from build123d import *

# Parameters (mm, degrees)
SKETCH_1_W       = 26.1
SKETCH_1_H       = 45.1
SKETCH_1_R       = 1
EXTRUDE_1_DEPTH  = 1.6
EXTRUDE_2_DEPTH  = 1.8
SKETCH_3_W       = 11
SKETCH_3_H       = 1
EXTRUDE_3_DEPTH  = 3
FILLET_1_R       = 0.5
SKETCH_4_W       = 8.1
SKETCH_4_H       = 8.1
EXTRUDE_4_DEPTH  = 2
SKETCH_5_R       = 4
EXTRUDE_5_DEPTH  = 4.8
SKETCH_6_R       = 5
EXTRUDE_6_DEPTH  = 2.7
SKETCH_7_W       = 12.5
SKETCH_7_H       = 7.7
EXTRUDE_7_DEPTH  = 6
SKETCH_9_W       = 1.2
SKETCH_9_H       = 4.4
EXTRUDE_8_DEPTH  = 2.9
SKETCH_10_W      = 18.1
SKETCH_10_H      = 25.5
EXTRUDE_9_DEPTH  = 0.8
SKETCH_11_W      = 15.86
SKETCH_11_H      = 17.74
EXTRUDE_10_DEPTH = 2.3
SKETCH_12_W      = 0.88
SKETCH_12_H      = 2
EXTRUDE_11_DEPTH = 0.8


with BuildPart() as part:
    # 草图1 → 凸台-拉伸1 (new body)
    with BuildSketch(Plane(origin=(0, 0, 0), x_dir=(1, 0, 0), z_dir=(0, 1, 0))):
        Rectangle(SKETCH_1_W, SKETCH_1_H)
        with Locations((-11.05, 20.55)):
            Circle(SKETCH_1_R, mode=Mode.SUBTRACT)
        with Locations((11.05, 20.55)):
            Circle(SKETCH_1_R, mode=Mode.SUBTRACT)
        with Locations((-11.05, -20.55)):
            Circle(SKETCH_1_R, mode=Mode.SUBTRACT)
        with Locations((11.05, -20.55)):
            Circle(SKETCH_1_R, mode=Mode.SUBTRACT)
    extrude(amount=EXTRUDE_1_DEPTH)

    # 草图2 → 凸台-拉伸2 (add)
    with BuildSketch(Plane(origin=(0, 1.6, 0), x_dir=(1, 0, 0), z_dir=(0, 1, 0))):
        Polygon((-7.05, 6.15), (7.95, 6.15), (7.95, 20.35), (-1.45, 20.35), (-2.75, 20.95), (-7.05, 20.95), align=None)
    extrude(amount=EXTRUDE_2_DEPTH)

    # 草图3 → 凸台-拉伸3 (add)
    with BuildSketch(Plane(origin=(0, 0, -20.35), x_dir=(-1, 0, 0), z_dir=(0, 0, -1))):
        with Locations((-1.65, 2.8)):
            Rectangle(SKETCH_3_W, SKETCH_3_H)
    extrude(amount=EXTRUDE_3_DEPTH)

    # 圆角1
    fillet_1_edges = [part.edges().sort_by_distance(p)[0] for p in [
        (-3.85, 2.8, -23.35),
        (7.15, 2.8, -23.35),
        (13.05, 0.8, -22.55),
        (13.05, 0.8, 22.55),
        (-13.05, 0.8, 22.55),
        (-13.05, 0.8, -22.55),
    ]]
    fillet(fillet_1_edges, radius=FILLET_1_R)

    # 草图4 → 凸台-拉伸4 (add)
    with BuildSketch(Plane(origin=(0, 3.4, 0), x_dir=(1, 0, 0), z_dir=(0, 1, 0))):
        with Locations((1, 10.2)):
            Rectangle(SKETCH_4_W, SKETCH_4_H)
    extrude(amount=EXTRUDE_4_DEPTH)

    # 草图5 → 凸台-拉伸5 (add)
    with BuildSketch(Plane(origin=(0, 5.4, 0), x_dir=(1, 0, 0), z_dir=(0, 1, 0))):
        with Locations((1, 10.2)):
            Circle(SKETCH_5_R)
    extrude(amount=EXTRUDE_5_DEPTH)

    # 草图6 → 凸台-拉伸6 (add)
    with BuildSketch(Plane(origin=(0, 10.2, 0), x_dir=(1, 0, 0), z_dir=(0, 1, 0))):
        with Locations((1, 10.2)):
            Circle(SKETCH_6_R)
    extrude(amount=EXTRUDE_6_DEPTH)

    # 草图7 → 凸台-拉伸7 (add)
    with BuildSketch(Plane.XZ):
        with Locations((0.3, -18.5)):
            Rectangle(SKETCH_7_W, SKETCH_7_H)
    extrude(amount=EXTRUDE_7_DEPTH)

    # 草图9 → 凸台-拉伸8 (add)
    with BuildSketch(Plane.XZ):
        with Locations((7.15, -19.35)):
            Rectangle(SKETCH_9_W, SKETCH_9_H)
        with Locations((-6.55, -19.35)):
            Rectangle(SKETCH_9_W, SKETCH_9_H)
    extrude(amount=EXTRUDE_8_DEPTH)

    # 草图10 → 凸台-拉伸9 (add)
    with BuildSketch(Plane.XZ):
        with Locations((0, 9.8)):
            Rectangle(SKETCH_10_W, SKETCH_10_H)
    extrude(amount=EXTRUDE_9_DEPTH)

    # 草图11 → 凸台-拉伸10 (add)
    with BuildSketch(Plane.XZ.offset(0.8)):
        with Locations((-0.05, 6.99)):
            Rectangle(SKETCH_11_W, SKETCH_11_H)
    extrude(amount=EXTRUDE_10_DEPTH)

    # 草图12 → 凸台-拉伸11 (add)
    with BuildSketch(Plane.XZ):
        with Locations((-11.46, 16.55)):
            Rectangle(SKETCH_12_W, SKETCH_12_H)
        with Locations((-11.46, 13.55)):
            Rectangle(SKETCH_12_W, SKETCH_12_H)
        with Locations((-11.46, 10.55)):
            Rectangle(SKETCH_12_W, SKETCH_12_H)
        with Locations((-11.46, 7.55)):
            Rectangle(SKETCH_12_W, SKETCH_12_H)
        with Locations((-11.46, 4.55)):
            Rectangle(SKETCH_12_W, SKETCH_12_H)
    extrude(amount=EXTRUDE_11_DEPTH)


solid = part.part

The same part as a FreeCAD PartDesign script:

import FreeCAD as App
import Part
import Sketcher
from FreeCAD import Vector
Q = App.Units.Quantity


def edges_at(feature, points):
    """Names of the edges that pass closest to the given points."""
    edges = feature.Shape.Edges
    near = lambda p: min(range(len(edges)), key=lambda i: edges[i].distToShape(Part.Vertex(*p))[0])
    return sorted({f"Edge{near(p) + 1}" for p in points})

doc = App.newDocument("Part")
body = doc.addObject("PartDesign::Body", "Body")

# Sketch on XZ plane
sketch1 = body.newObject("Sketcher::SketchObject", "Sketch")
sketch1.AttachmentSupport = (doc.getObject("XZ_Plane"), [""])
sketch1.MapMode = "FlatFace"
sketch1.addGeometry([
    Part.LineSegment(Vector(-13.1, -22.6, 0), Vector(-13.1, 22.6, 0)),  # 0
    Part.LineSegment(Vector(-13.1, 22.6, 0), Vector(13.1, 22.6, 0)),  # 1
    Part.LineSegment(Vector(13.1, 22.6, 0), Vector(13.1, -22.6, 0)),  # 2
    Part.LineSegment(Vector(13.1, -22.6, 0), Vector(-13.1, -22.6, 0)),  # 3
    Part.Circle(Vector(-11.1, 20.6, 0), Vector(0, 0, 1), 1),  # 4
    Part.Circle(Vector(11.1, 20.6, 0), Vector(0, 0, 1), 1),  # 5
    Part.Circle(Vector(-11.1, -20.6, 0), Vector(0, 0, 1), 1),  # 6
    Part.Circle(Vector(11.1, -20.6, 0), Vector(0, 0, 1), 1),  # 7
], False)
sketch1.addConstraint([
    Sketcher.Constraint("Coincident", 0, 2, 1, 1),
    Sketcher.Constraint("Coincident", 1, 2, 2, 1),
    Sketcher.Constraint("Coincident", 2, 2, 3, 1),
    Sketcher.Constraint("Coincident", 3, 2, 0, 1),
    Sketcher.Constraint("Vertical", 0),
    Sketcher.Constraint("Horizontal", 1),
    Sketcher.Constraint("Vertical", 2),
    Sketcher.Constraint("Horizontal", 3),
    Sketcher.Constraint("Equal", 4, 5),
    Sketcher.Constraint("Equal", 5, 6),
    Sketcher.Constraint("Equal", 6, 7),
    Sketcher.Constraint("Symmetric", 5, 3, 6, 3, -1, 1),
    Sketcher.Constraint("Symmetric", 4, 3, 7, 3, -1, 1),
    Sketcher.Constraint("Symmetric", 0, 2, 2, 2, -1, 1),
    Sketcher.Constraint("Symmetric", 4, 3, 5, 3, -2),
    Sketcher.Constraint("Diameter", 4, Q("2 mm")),
    Sketcher.Constraint("DistanceX", 1, 1, 1, 2, Q("26.1 mm")),
    Sketcher.Constraint("DistanceY", 0, 1, 0, 2, Q("45.1 mm")),
    Sketcher.Constraint("DistanceX", 0, 2, 4, 3, Q("2 mm")),
    Sketcher.Constraint("DistanceY", 4, 3, 0, 2, Q("2 mm")),
])
pad1 = body.newObject("PartDesign::Pad", "Pad")
pad1.Profile = sketch1
pad1.Length = 1.6
pad1.Reversed = True

# Sketch on XZ plane
sketch2 = body.newObject("Sketcher::SketchObject", "Sketch001")
sketch2.AttachmentSupport = (doc.getObject("XZ_Plane"), [""])
sketch2.MapMode = "FlatFace"
sketch2.AttachmentOffset = App.Placement(Vector(0, 0, -1.6), App.Rotation())
sketch2.addGeometry([
    Part.LineSegment(Vector(-7, -6.2, 0), Vector(8, -6.2, 0)),  # 0
    Part.LineSegment(Vector(8, -6.2, 0), Vector(8, -20.4, 0)),  # 1
    Part.LineSegment(Vector(8, -20.4, 0), Vector(-1.4, -20.4, 0)),  # 2
    Part.LineSegment(Vector(-1.4, -20.4, 0), Vector(-2.8, -20.9, 0)),  # 3
    Part.LineSegment(Vector(-2.8, -20.9, 0), Vector(-7, -20.9, 0)),  # 4
    Part.LineSegment(Vector(-7, -20.9, 0), Vector(-7, -6.2, 0)),  # 5
], False)
sketch2.addConstraint([
    Sketcher.Constraint("Coincident", 0, 2, 1, 1),
    Sketcher.Constraint("Coincident", 1, 2, 2, 1),
    Sketcher.Constraint("Coincident", 2, 2, 3, 1),
    Sketcher.Constraint("Coincident", 3, 2, 4, 1),
    Sketcher.Constraint("Coincident", 4, 2, 5, 1),
    Sketcher.Constraint("Coincident", 5, 2, 0, 1),
    Sketcher.Constraint("Horizontal", 0),
    Sketcher.Constraint("Vertical", 1),
    Sketcher.Constraint("Horizontal", 2),
    Sketcher.Constraint("Horizontal", 4),
    Sketcher.Constraint("Vertical", 5),
    Sketcher.Constraint("DistanceX", 0, 1, 0, 2, Q("15 mm")),
    Sketcher.Constraint("DistanceX", 2, 2, 2, 1, Q("9.4 mm")),
    Sketcher.Constraint("DistanceX", 4, 2, 4, 1, Q("4.3 mm")),
    Sketcher.Constraint("DistanceY", 1, 2, 1, 1, Q("14.2 mm")),
    Sketcher.Constraint("DistanceY", 5, 1, 5, 2, Q("14.8 mm")),
    Sketcher.Constraint("DistanceX", -1, 1, 0, 2, Q("7.95 mm")),
    Sketcher.Constraint("DistanceY", 0, 2, -1, 1, Q("6.15 mm")),
])
pad2 = body.newObject("PartDesign::Pad", "Pad001")
pad2.Profile = sketch2
pad2.Length = 1.8
pad2.Reversed = True

# Sketch on XY plane
sketch3 = body.newObject("Sketcher::SketchObject", "Sketch002")
sketch3.AttachmentSupport = (doc.getObject("XY_Plane"), [""])
sketch3.MapMode = "FlatFace"
sketch3.AttachmentOffset = App.Placement(Vector(0, 0, -20.35), App.Rotation())
sketch3.addGeometry([
    Part.LineSegment(Vector(7.2, 3.3, 0), Vector(7.2, 2.3, 0)),
    Part.LineSegment(Vector(7.2, 2.3, 0), Vector(-3.9, 2.3, 0)),
    Part.LineSegment(Vector(-3.9, 2.3, 0), Vector(-3.9, 3.3, 0)),
    Part.LineSegment(Vector(-3.9, 3.3, 0), Vector(7.2, 3.3, 0)),
], False)
sketch3.addConstraint([
    Sketcher.Constraint("Coincident", 0, 2, 1, 1),
    Sketcher.Constraint("Coincident", 1, 2, 2, 1),
    Sketcher.Constraint("Coincident", 2, 2, 3, 1),
    Sketcher.Constraint("Coincident", 3, 2, 0, 1),
    Sketcher.Constraint("Vertical", 0),
    Sketcher.Constraint("Horizontal", 1),
    Sketcher.Constraint("Vertical", 2),
    Sketcher.Constraint("Horizontal", 3),
    Sketcher.Constraint("DistanceX", 1, 2, 1, 1, Q("11 mm")),
    Sketcher.Constraint("DistanceY", 0, 2, 0, 1, Q("1 mm")),
    Sketcher.Constraint("DistanceY", -1, 1, 0, 2, Q("2.3 mm")),
    Sketcher.Constraint("DistanceX", -1, 1, 0, 2, Q("7.15 mm")),
])
pad3 = body.newObject("PartDesign::Pad", "Pad002")
pad3.Profile = sketch3
pad3.Length = 3
pad3.Reversed = True
doc.recompute()

fillet = body.newObject("PartDesign::Fillet", "Fillet")
fillet.Base = (pad3, edges_at(pad3, [
    (-3.85, 2.8, -23.35),
    (7.15, 2.8, -23.35),
    (13.05, 0.8, -22.55),
    (13.05, 0.8, 22.55),
    (-13.05, 0.8, 22.55),
    (-13.05, 0.8, -22.55),
]))
fillet.Radius = 0.5

# Sketch on XZ plane
sketch4 = body.newObject("Sketcher::SketchObject", "Sketch003")
sketch4.AttachmentSupport = (doc.getObject("XZ_Plane"), [""])
sketch4.MapMode = "FlatFace"
sketch4.AttachmentOffset = App.Placement(Vector(0, 0, -3.4), App.Rotation())
sketch4.addGeometry([
    Part.LineSegment(Vector(-3, -14, 0), Vector(-3, -6, 0)),
    Part.LineSegment(Vector(-3, -6, 0), Vector(5, -6, 0)),
    Part.LineSegment(Vector(5, -6, 0), Vector(5, -14, 0)),
    Part.LineSegment(Vector(5, -14, 0), Vector(-3, -14, 0)),
], False)
sketch4.addConstraint([
    Sketcher.Constraint("Coincident", 0, 2, 1, 1),
    Sketcher.Constraint("Coincident", 1, 2, 2, 1),
    Sketcher.Constraint("Coincident", 2, 2, 3, 1),
    Sketcher.Constraint("Coincident", 3, 2, 0, 1),
    Sketcher.Constraint("Vertical", 0),
    Sketcher.Constraint("Horizontal", 1),
    Sketcher.Constraint("Vertical", 2),
    Sketcher.Constraint("Horizontal", 3),
    Sketcher.Constraint("Equal", 3, 0),
    Sketcher.Constraint("DistanceX", 1, 1, 1, 2, Q("8.1 mm")),
    Sketcher.Constraint("DistanceX", 0, 2, -1, 1, Q("3.05 mm")),
    Sketcher.Constraint("DistanceY", 0, 2, -1, 1, Q("6.15 mm")),
])
pad4 = body.newObject("PartDesign::Pad", "Pad003")
pad4.Profile = sketch4
pad4.Length = 2
pad4.Reversed = True

# Sketch on XZ plane
sketch5 = body.newObject("Sketcher::SketchObject", "Sketch004")
sketch5.AttachmentSupport = (doc.getObject("XZ_Plane"), [""])
sketch5.MapMode = "FlatFace"
sketch5.AttachmentOffset = App.Placement(Vector(0, 0, -5.4), App.Rotation())
sketch5.addGeometry(Part.Circle(Vector(1, -10.2, 0), Vector(0, 0, 1), 4), False)
sketch5.addConstraint([
    Sketcher.Constraint("Diameter", 0, Q("8 mm")),
    Sketcher.Constraint("DistanceX", -1, 1, 0, 3, Q("1 mm")),
    Sketcher.Constraint("DistanceY", 0, 3, -1, 1, Q("10.2 mm")),
])
pad5 = body.newObject("PartDesign::Pad", "Pad004")
pad5.Profile = sketch5
pad5.Length = 4.8
pad5.Reversed = True

# Sketch on XZ plane
sketch6 = body.newObject("Sketcher::SketchObject", "Sketch005")
sketch6.AttachmentSupport = (doc.getObject("XZ_Plane"), [""])
sketch6.MapMode = "FlatFace"
sketch6.AttachmentOffset = App.Placement(Vector(0, 0, -10.2), App.Rotation())
sketch6.addGeometry(Part.Circle(Vector(1, -10, 0), Vector(0, 0, 1), 5), False)
sketch6.addConstraint([
    Sketcher.Constraint("Diameter", 0, Q("10 mm")),
    Sketcher.Constraint("DistanceX", -1, 1, 0, 3, Q("1 mm")),
    Sketcher.Constraint("DistanceY", 0, 3, -1, 1, Q("10.2 mm")),
])
pad6 = body.newObject("PartDesign::Pad", "Pad005")
pad6.Profile = sketch6
pad6.Length = 2.7
pad6.Reversed = True

# Sketch on XZ plane
sketch7 = body.newObject("Sketcher::SketchObject", "Sketch006")
sketch7.AttachmentSupport = (doc.getObject("XZ_Plane"), [""])
sketch7.MapMode = "FlatFace"
sketch7.addGeometry([
    Part.LineSegment(Vector(-6, -15, 0), Vector(-6, -22, 0)),
    Part.LineSegment(Vector(-6, -22, 0), Vector(7, -22, 0)),
    Part.LineSegment(Vector(7, -22, 0), Vector(7, -15, 0)),
    Part.LineSegment(Vector(7, -15, 0), Vector(-6, -15, 0)),
], False)
sketch7.addConstraint([
    Sketcher.Constraint("Coincident", 0, 2, 1, 1),
    Sketcher.Constraint("Coincident", 1, 2, 2, 1),
    Sketcher.Constraint("Coincident", 2, 2, 3, 1),
    Sketcher.Constraint("Coincident", 3, 2, 0, 1),
    Sketcher.Constraint("Vertical", 0),
    Sketcher.Constraint("Horizontal", 1),
    Sketcher.Constraint("Vertical", 2),
    Sketcher.Constraint("Horizontal", 3),
    Sketcher.Constraint("DistanceX", 1, 1, 1, 2, Q("12.5 mm")),
    Sketcher.Constraint("DistanceY", 0, 2, 0, 1, Q("7.7 mm")),
    Sketcher.Constraint("DistanceX", 0, 2, -1, 1, Q("5.95 mm")),
    Sketcher.Constraint("DistanceY", 0, 2, -1, 1, Q("22.35 mm")),
])
pad7 = body.newObject("PartDesign::Pad", "Pad006")
pad7.Profile = sketch7
pad7.Length = 6

# Sketch on XZ plane
sketch8 = body.newObject("Sketcher::SketchObject", "Sketch007")
sketch8.AttachmentSupport = (doc.getObject("XZ_Plane"), [""])
sketch8.MapMode = "FlatFace"
sketch8.addGeometry([
    Part.LineSegment(Vector(6.5, -17.1, 0), Vector(6.5, -21.6, 0)),  # 0
    Part.LineSegment(Vector(6.5, -21.6, 0), Vector(7.8, -21.6, 0)),  # 1
    Part.LineSegment(Vector(7.8, -21.6, 0), Vector(7.8, -17.1, 0)),  # 2
    Part.LineSegment(Vector(7.8, -17.1, 0), Vector(6.5, -17.1, 0)),  # 3
    Part.LineSegment(Vector(-7.2, -17.1, 0), Vector(-7.2, -21.6, 0)),  # 4
    Part.LineSegment(Vector(-7.2, -21.6, 0), Vector(-6, -21.6, 0)),  # 5
    Part.LineSegment(Vector(-6, -21.6, 0), Vector(-6, -17.1, 0)),  # 6
    Part.LineSegment(Vector(-6, -17.1, 0), Vector(-7.2, -17.1, 0)),  # 7
], False)
sketch8.addConstraint([
    Sketcher.Constraint("Coincident", 0, 2, 1, 1),
    Sketcher.Constraint("Coincident", 1, 2, 2, 1),
    Sketcher.Constraint("Coincident", 2, 2, 3, 1),
    Sketcher.Constraint("Coincident", 3, 2, 0, 1),
    Sketcher.Constraint("Coincident", 4, 2, 5, 1),
    Sketcher.Constraint("Coincident", 5, 2, 6, 1),
    Sketcher.Constraint("Coincident", 6, 2, 7, 1),
    Sketcher.Constraint("Coincident", 7, 2, 4, 1),
    Sketcher.Constraint("Vertical", 0),
    Sketcher.Constraint("Horizontal", 1),
    Sketcher.Constraint("Vertical", 2),
    Sketcher.Constraint("Horizontal", 3),
    Sketcher.Constraint("Vertical", 4),
    Sketcher.Constraint("Horizontal", 5),
    Sketcher.Constraint("Vertical", 6),
    Sketcher.Constraint("Horizontal", 7),
    Sketcher.Constraint("Horizontal", 1, 2, 4, 2),
    Sketcher.Constraint("Horizontal", 3, 2, 6, 2),
    Sketcher.Constraint("Equal", 3, 5),
    Sketcher.Constraint("DistanceX", 1, 1, 1, 2, Q("1.2 mm")),
    Sketcher.Constraint("DistanceY", 0, 2, 0, 1, Q("4.4 mm")),
    Sketcher.Constraint("DistanceX", 4, 2, 0, 2, Q("13.7 mm")),
    Sketcher.Constraint("DistanceX", -1, 1, 0, 2, Q("6.55 mm")),
    Sketcher.Constraint("DistanceY", 0, 2, -1, 1, Q("21.55 mm")),
])
pad8 = body.newObject("PartDesign::Pad", "Pad007")
pad8.Profile = sketch8
pad8.Length = 2.9

# Sketch on XZ plane
sketch9 = body.newObject("Sketcher::SketchObject", "Sketch008")
sketch9.AttachmentSupport = (doc.getObject("XZ_Plane"), [""])
sketch9.MapMode = "FlatFace"
sketch9.addGeometry([
    Part.LineSegment(Vector(-9, 23, 0), Vector(-9, -3, 0)),
    Part.LineSegment(Vector(-9, -3, 0), Vector(9, -3, 0)),
    Part.LineSegment(Vector(9, -3, 0), Vector(9, 23, 0)),
    Part.LineSegment(Vector(9, 23, 0), Vector(-9, 23, 0)),
], False)
sketch9.addConstraint([
    Sketcher.Constraint("Coincident", 0, 2, 1, 1),
    Sketcher.Constraint("Coincident", 1, 2, 2, 1),
    Sketcher.Constraint("Coincident", 2, 2, 3, 1),
    Sketcher.Constraint("Coincident", 3, 2, 0, 1),
    Sketcher.Constraint("Vertical", 0),
    Sketcher.Constraint("Horizontal", 1),
    Sketcher.Constraint("Vertical", 2),
    Sketcher.Constraint("Horizontal", 3),
    Sketcher.Constraint("DistanceX", 1, 1, 1, 2, Q("18.1 mm")),
    Sketcher.Constraint("DistanceY", 0, 2, 0, 1, Q("25.5 mm")),
    Sketcher.Constraint("DistanceX", 0, 2, -1, 1, Q("9.05 mm")),
    Sketcher.Constraint("DistanceY", 0, 2, -1, 1, Q("2.95 mm")),
])
pad9 = body.newObject("PartDesign::Pad", "Pad008")
pad9.Profile = sketch9
pad9.Length = 0.8

# Sketch on XZ plane
sketch10 = body.newObject("Sketcher::SketchObject", "Sketch009")
sketch10.AttachmentSupport = (doc.getObject("XZ_Plane"), [""])
sketch10.MapMode = "FlatFace"
sketch10.AttachmentOffset = App.Placement(Vector(0, 0, 0.8), App.Rotation())
sketch10.addGeometry([
    Part.LineSegment(Vector(-8, 16, 0), Vector(-8, -2, 0)),
    Part.LineSegment(Vector(-8, -2, 0), Vector(8, -2, 0)),
    Part.LineSegment(Vector(8, -2, 0), Vector(8, 16, 0)),
    Part.LineSegment(Vector(8, 16, 0), Vector(-8, 16, 0)),
], False)
sketch10.addConstraint([
    Sketcher.Constraint("Coincident", 0, 2, 1, 1),
    Sketcher.Constraint("Coincident", 1, 2, 2, 1),
    Sketcher.Constraint("Coincident", 2, 2, 3, 1),
    Sketcher.Constraint("Coincident", 3, 2, 0, 1),
    Sketcher.Constraint("Vertical", 0),
    Sketcher.Constraint("Horizontal", 1),
    Sketcher.Constraint("Vertical", 2),
    Sketcher.Constraint("Horizontal", 3),
    Sketcher.Constraint("DistanceX", 1, 1, 1, 2, Q("15.86 mm")),
    Sketcher.Constraint("DistanceY", 0, 2, 0, 1, Q("17.74 mm")),
    Sketcher.Constraint("DistanceX", 0, 2, -1, 1, Q("7.98 mm")),
    Sketcher.Constraint("DistanceY", 0, 2, -1, 1, Q("1.88 mm")),
])
pad10 = body.newObject("PartDesign::Pad", "Pad009")
pad10.Profile = sketch10
pad10.Length = 2.3

# Sketch on XZ plane
sketch11 = body.newObject("Sketcher::SketchObject", "Sketch010")
sketch11.AttachmentSupport = (doc.getObject("XZ_Plane"), [""])
sketch11.MapMode = "FlatFace"
sketch11.addGeometry([
    Part.LineSegment(Vector(-11.9, 17.6, 0), Vector(-11.9, 15.6, 0)),  # 0
    Part.LineSegment(Vector(-11.9, 15.6, 0), Vector(-11, 15.6, 0)),  # 1
    Part.LineSegment(Vector(-11, 15.6, 0), Vector(-11, 17.6, 0)),  # 2
    Part.LineSegment(Vector(-11, 17.6, 0), Vector(-11.9, 17.6, 0)),  # 3
    Part.LineSegment(Vector(-11.9, 14.6, 0), Vector(-11.9, 12.6, 0)),  # 4
    Part.LineSegment(Vector(-11.9, 12.6, 0), Vector(-11, 12.6, 0)),  # 5
    Part.LineSegment(Vector(-11, 12.6, 0), Vector(-11, 14.6, 0)),  # 6
    Part.LineSegment(Vector(-11, 14.6, 0), Vector(-11.9, 14.6, 0)),  # 7
    Part.LineSegment(Vector(-11.9, 11.6, 0), Vector(-11.9, 9.6, 0)),  # 8
    Part.LineSegment(Vector(-11.9, 9.6, 0), Vector(-11, 9.6, 0)),  # 9
    Part.LineSegment(Vector(-11, 9.6, 0), Vector(-11, 11.6, 0)),  # 10
    Part.LineSegment(Vector(-11, 11.6, 0), Vector(-11.9, 11.6, 0)),  # 11
    Part.LineSegment(Vector(-11.9, 8.6, 0), Vector(-11.9, 6.5, 0)),  # 12
    Part.LineSegment(Vector(-11.9, 6.5, 0), Vector(-11, 6.5, 0)),  # 13
    Part.LineSegment(Vector(-11, 6.5, 0), Vector(-11, 8.6, 0)),  # 14
    Part.LineSegment(Vector(-11, 8.6, 0), Vector(-11.9, 8.6, 0)),  # 15
    Part.LineSegment(Vector(-11.9, 5.5, 0), Vector(-11.9, 3.5, 0)),  # 16
    Part.LineSegment(Vector(-11.9, 3.5, 0), Vector(-11, 3.5, 0)),  # 17
    Part.LineSegment(Vector(-11, 3.5, 0), Vector(-11, 5.5, 0)),  # 18
    Part.LineSegment(Vector(-11, 5.5, 0), Vector(-11.9, 5.5, 0)),  # 19
], False)
sketch11.addConstraint([
    Sketcher.Constraint("Coincident", 0, 2, 1, 1),
    Sketcher.Constraint("Coincident", 1, 2, 2, 1),
    Sketcher.Constraint("Coincident", 2, 2, 3, 1),
    Sketcher.Constraint("Coincident", 3, 2, 0, 1),
    Sketcher.Constraint("Coincident", 4, 2, 5, 1),
    Sketcher.Constraint("Coincident", 5, 2, 6, 1),
    Sketcher.Constraint("Coincident", 6, 2, 7, 1),
    Sketcher.Constraint("Coincident", 7, 2, 4, 1),
    Sketcher.Constraint("Coincident", 8, 2, 9, 1),
    Sketcher.Constraint("Coincident", 9, 2, 10, 1),
    Sketcher.Constraint("Coincident", 10, 2, 11, 1),
    Sketcher.Constraint("Coincident", 11, 2, 8, 1),
    Sketcher.Constraint("Coincident", 12, 2, 13, 1),
    Sketcher.Constraint("Coincident", 13, 2, 14, 1),
    Sketcher.Constraint("Coincident", 14, 2, 15, 1),
    Sketcher.Constraint("Coincident", 15, 2, 12, 1),
    Sketcher.Constraint("Coincident", 16, 2, 17, 1),
    Sketcher.Constraint("Coincident", 17, 2, 18, 1),
    Sketcher.Constraint("Coincident", 18, 2, 19, 1),
    Sketcher.Constraint("Coincident", 19, 2, 16, 1),
    Sketcher.Constraint("Vertical", 0),
    Sketcher.Constraint("Horizontal", 1),
    Sketcher.Constraint("Vertical", 2),
    Sketcher.Constraint("Horizontal", 3),
    Sketcher.Constraint("Vertical", 4),
    Sketcher.Constraint("Horizontal", 5),
    Sketcher.Constraint("Vertical", 6),
    Sketcher.Constraint("Horizontal", 7),
    Sketcher.Constraint("Vertical", 8),
    Sketcher.Constraint("Horizontal", 9),
    Sketcher.Constraint("Vertical", 10),
    Sketcher.Constraint("Horizontal", 11),
    Sketcher.Constraint("Vertical", 12),
    Sketcher.Constraint("Horizontal", 13),
    Sketcher.Constraint("Vertical", 14),
    Sketcher.Constraint("Horizontal", 15),
    Sketcher.Constraint("Vertical", 16),
    Sketcher.Constraint("Horizontal", 17),
    Sketcher.Constraint("Vertical", 18),
    Sketcher.Constraint("Horizontal", 19),
    Sketcher.Constraint("Vertical", 3, 2, 4, 2),
    Sketcher.Constraint("Vertical", 2, 2, 5, 2),
    Sketcher.Constraint("Vertical", 7, 2, 8, 2),
    Sketcher.Constraint("Vertical", 6, 2, 9, 2),
    Sketcher.Constraint("Vertical", 11, 2, 12, 2),
    Sketcher.Constraint("Vertical", 10, 2, 13, 2),
    Sketcher.Constraint("Vertical", 15, 2, 16, 2),
    Sketcher.Constraint("Vertical", 14, 2, 17, 2),
    Sketcher.Constraint("Equal", 2, 4),
    Sketcher.Constraint("Equal", 6, 8),
    Sketcher.Constraint("Equal", 10, 12),
    Sketcher.Constraint("Equal", 14, 16),
    Sketcher.Constraint("DistanceY", 0, 2, 0, 1, Q("2 mm")),
    Sketcher.Constraint("DistanceY", 4, 2, 0, 2, Q("3 mm")),
    Sketcher.Constraint("DistanceY", 8, 2, 4, 2, Q("3 mm")),
    Sketcher.Constraint("DistanceY", 12, 2, 8, 2, Q("3 mm")),
    Sketcher.Constraint("DistanceY", 16, 2, 12, 2, Q("3 mm")),
    Sketcher.Constraint("DistanceX", 1, 1, 1, 2, Q("0.88 mm")),
    Sketcher.Constraint("DistanceX", 0, 2, -1, 1, Q("11.9 mm")),
    Sketcher.Constraint("DistanceY", -1, 1, 0, 2, Q("15.55 mm")),
])
pad11 = body.newObject("PartDesign::Pad", "Pad010")
pad11.Profile = sketch11
pad11.Length = 0.8

doc.recompute()
